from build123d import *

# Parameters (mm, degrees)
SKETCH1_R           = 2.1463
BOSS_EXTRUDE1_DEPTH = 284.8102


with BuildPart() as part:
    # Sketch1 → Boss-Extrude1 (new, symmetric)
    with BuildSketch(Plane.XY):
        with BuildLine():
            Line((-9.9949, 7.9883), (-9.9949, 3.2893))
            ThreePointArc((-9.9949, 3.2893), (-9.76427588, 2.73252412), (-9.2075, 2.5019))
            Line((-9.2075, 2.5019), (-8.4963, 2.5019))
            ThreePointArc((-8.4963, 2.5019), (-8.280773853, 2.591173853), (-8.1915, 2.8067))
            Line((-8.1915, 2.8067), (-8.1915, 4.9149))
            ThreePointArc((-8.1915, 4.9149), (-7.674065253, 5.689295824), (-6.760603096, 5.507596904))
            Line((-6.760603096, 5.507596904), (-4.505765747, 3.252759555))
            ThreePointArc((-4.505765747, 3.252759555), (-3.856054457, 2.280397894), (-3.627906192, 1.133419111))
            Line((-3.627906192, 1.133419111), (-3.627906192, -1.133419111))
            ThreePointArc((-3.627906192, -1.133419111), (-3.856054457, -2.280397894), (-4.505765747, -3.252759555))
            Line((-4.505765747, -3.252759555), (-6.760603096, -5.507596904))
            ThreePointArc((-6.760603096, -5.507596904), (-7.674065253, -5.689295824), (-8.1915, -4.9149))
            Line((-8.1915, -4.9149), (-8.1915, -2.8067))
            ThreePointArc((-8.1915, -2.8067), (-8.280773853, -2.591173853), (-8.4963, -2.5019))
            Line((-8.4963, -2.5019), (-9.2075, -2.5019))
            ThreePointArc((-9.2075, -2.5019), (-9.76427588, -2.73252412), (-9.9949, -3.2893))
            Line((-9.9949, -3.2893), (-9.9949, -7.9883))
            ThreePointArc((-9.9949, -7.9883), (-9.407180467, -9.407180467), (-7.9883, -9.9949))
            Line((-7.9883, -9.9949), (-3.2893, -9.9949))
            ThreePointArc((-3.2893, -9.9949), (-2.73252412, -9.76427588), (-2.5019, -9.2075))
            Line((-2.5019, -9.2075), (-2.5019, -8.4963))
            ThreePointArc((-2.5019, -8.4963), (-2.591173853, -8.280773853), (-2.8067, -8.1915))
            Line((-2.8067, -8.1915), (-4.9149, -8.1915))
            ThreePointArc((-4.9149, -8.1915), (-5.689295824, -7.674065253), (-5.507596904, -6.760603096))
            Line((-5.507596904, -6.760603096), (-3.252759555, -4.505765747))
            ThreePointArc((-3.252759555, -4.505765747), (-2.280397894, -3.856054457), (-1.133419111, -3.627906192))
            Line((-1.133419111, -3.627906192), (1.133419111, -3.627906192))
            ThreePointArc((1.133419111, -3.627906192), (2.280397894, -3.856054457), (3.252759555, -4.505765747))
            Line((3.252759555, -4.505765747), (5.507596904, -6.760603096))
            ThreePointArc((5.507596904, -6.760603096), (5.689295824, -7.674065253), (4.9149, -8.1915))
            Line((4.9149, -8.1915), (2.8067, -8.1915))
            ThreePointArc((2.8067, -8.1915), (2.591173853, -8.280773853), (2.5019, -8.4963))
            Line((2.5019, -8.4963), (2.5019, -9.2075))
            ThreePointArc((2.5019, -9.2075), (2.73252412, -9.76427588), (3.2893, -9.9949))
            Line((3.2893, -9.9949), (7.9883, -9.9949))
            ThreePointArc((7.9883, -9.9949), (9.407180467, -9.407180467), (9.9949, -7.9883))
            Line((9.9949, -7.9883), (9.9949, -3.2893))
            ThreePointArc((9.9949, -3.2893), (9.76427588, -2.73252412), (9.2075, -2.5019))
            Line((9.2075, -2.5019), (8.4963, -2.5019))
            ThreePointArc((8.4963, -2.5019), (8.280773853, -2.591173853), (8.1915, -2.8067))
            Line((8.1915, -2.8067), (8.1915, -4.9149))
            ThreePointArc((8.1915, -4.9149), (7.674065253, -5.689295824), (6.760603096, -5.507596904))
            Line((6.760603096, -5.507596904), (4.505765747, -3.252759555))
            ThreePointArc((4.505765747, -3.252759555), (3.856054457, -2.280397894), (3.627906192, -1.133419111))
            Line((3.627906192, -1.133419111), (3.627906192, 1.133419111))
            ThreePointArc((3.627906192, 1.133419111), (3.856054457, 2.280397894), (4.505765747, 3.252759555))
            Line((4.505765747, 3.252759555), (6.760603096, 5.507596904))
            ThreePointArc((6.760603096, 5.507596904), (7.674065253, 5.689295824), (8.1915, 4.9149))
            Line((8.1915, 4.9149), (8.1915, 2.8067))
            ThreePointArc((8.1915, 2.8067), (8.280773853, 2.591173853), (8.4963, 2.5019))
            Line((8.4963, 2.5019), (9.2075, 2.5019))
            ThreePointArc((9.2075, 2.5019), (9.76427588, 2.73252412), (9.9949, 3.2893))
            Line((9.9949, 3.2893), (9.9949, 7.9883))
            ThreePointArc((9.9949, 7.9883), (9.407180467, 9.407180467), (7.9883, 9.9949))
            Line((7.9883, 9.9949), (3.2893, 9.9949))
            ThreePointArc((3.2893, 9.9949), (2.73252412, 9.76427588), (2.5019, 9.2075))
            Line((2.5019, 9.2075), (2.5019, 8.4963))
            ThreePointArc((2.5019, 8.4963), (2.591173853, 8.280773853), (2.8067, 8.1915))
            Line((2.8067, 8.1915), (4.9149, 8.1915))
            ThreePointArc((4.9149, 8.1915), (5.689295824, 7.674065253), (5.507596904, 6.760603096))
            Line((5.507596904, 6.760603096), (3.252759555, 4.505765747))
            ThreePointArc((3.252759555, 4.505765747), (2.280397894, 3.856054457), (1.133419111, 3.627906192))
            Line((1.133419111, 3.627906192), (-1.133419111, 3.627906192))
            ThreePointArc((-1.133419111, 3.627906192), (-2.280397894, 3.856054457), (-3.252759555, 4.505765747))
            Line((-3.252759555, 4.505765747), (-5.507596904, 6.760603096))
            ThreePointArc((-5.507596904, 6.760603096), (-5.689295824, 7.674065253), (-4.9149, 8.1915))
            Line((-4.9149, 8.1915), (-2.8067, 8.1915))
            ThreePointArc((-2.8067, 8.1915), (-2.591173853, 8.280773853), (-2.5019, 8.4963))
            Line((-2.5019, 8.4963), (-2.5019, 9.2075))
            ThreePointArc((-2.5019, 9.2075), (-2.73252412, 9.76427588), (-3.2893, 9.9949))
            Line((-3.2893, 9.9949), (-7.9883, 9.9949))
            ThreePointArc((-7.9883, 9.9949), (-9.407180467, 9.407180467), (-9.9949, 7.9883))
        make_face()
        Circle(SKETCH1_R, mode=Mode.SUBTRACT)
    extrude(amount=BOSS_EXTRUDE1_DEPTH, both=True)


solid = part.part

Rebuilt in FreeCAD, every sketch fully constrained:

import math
import FreeCAD as App
import Part
import Sketcher

V = App.Vector
Q = App.Units.Quantity

doc = App.newDocument("Part")
body = doc.addObject("PartDesign::Body", "Body")

# Sketch on XY plane
sketch1 = body.newObject("Sketcher::SketchObject", "Sketch")
sketch1.AttachmentSupport = (doc.getObject("XY_Plane"), [""])
sketch1.MapMode = "FlatFace"
sketch1.addGeometry([
    Part.LineSegment(V(-9.99, 7.99, 0), V(-9.99, 3.29, 0)),  # 0
    Part.ArcOfCircle(Part.Circle(V(-9.21, 3.29, 0), V(0, 0, 1), 0.79), math.radians(180), math.radians(270)),  # 1
    Part.LineSegment(V(-9.21, 2.5, 0), V(-8.5, 2.5, 0)),  # 2
    Part.ArcOfCircle(Part.Circle(V(-8.5, 2.81, 0), V(0, 0, 1), 0.3), math.radians(-90), math.radians(0)),  # 3
    Part.LineSegment(V(-8.19, 2.81, 0), V(-8.19, 4.91, 0)),  # 4
    Part.ArcOfCircle(Part.Circle(V(-7.35, 4.91, 0), V(0, 0, 1), 0.84), math.radians(45), math.radians(180)),  # 5
    Part.LineSegment(V(-6.76, 5.51, 0), V(-4.51, 3.25, 0)),  # 6
    Part.ArcOfCircle(Part.Circle(V(-6.63, 1.13, 0), V(0, 0, 1), 3), math.radians(0), math.radians(45)),  # 7
    Part.LineSegment(V(-3.63, 1.13, 0), V(-3.63, -1.13, 0)),  # 8
    Part.ArcOfCircle(Part.Circle(V(-6.63, -1.13, 0), V(0, 0, 1), 3), math.radians(-45), math.radians(0)),  # 9
    Part.LineSegment(V(-4.51, -3.25, 0), V(-6.76, -5.51, 0)),  # 10
    Part.ArcOfCircle(Part.Circle(V(-7.35, -4.91, 0), V(0, 0, 1), 0.84), math.radians(180), math.radians(315)),  # 11
    Part.LineSegment(V(-8.19, -4.91, 0), V(-8.19, -2.81, 0)),  # 12
    Part.ArcOfCircle(Part.Circle(V(-8.5, -2.81, 0), V(0, 0, 1), 0.3), math.radians(0), math.radians(90)),  # 13
    Part.LineSegment(V(-8.5, -2.5, 0), V(-9.21, -2.5, 0)),  # 14
    Part.ArcOfCircle(Part.Circle(V(-9.21, -3.29, 0), V(0, 0, 1), 0.79), math.radians(90), math.radians(180)),  # 15
    Part.LineSegment(V(-9.99, -3.29, 0), V(-9.99, -7.99, 0)),  # 16
    Part.ArcOfCircle(Part.Circle(V(-7.99, -7.99, 0), V(0, 0, 1), 2.01), math.radians(180), math.radians(270)),  # 17
    Part.LineSegment(V(-7.99, -9.99, 0), V(-3.29, -9.99, 0)),  # 18
    Part.ArcOfCircle(Part.Circle(V(-3.29, -9.21, 0), V(0, 0, 1), 0.79), math.radians(-90), math.radians(0)),  # 19
    Part.LineSegment(V(-2.5, -9.21, 0), V(-2.5, -8.5, 0)),  # 20
    Part.ArcOfCircle(Part.Circle(V(-2.81, -8.5, 0), V(0, 0, 1), 0.3), math.radians(0), math.radians(90)),  # 21
    Part.LineSegment(V(-2.81, -8.19, 0), V(-4.91, -8.19, 0)),  # 22
    Part.ArcOfCircle(Part.Circle(V(-4.91, -7.35, 0), V(0, 0, 1), 0.84), math.radians(135), math.radians(270)),  # 23
    Part.LineSegment(V(-5.51, -6.76, 0), V(-3.25, -4.51, 0)),  # 24
    Part.ArcOfCircle(Part.Circle(V(-1.13, -6.63, 0), V(0, 0, 1), 3), math.radians(90), math.radians(135)),  # 25
    Part.LineSegment(V(-1.13, -3.63, 0), V(1.13, -3.63, 0)),  # 26
    Part.ArcOfCircle(Part.Circle(V(1.13, -6.63, 0), V(0, 0, 1), 3), math.radians(45), math.radians(90)),  # 27
    Part.LineSegment(V(3.25, -4.51, 0), V(5.51, -6.76, 0)),  # 28
    Part.ArcOfCircle(Part.Circle(V(4.91, -7.35, 0), V(0, 0, 1), 0.84), math.radians(-90), math.radians(45)),  # 29
    Part.LineSegment(V(4.91, -8.19, 0), V(2.81, -8.19, 0)),  # 30
    Part.ArcOfCircle(Part.Circle(V(2.81, -8.5, 0), V(0, 0, 1), 0.3), math.radians(90), math.radians(180)),  # 31
    Part.LineSegment(V(2.5, -8.5, 0), V(2.5, -9.21, 0)),  # 32
    Part.ArcOfCircle(Part.Circle(V(3.29, -9.21, 0), V(0, 0, 1), 0.79), math.radians(180), math.radians(270)),  # 33
    Part.LineSegment(V(3.29, -9.99, 0), V(7.99, -9.99, 0)),  # 34
    Part.ArcOfCircle(Part.Circle(V(7.99, -7.99, 0), V(0, 0, 1), 2.01), math.radians(-90), math.radians(0)),  # 35
    Part.LineSegment(V(9.99, -7.99, 0), V(9.99, -3.29, 0)),  # 36
    Part.ArcOfCircle(Part.Circle(V(9.21, -3.29, 0), V(0, 0, 1), 0.79), math.radians(0), math.radians(90)),  # 37
    Part.LineSegment(V(9.21, -2.5, 0), V(8.5, -2.5, 0)),  # 38
    Part.ArcOfCircle(Part.Circle(V(8.5, -2.81, 0), V(0, 0, 1), 0.3), math.radians(90), math.radians(180)),  # 39
    Part.LineSegment(V(8.19, -2.81, 0), V(8.19, -4.91, 0)),  # 40
    Part.ArcOfCircle(Part.Circle(V(7.35, -4.91, 0), V(0, 0, 1), 0.84), math.radians(-135), math.radians(0)),  # 41
    Part.LineSegment(V(6.76, -5.51, 0), V(4.51, -3.25, 0)),  # 42
    Part.ArcOfCircle(Part.Circle(V(6.63, -1.13, 0), V(0, 0, 1), 3), math.radians(180), math.radians(225)),  # 43
    Part.LineSegment(V(3.63, -1.13, 0), V(3.63, 1.13, 0)),  # 44
    Part.ArcOfCircle(Part.Circle(V(6.63, 1.13, 0), V(0, 0, 1), 3), math.radians(135), math.radians(180)),  # 45
    Part.LineSegment(V(4.51, 3.25, 0), V(6.76, 5.51, 0)),  # 46
    Part.ArcOfCircle(Part.Circle(V(7.35, 4.91, 0), V(0, 0, 1), 0.84), math.radians(0), math.radians(135)),  # 47
    Part.LineSegment(V(8.19, 4.91, 0), V(8.19, 2.81, 0)),  # 48
    Part.ArcOfCircle(Part.Circle(V(8.5, 2.81, 0), V(0, 0, 1), 0.3), math.radians(180), math.radians(270)),  # 49
    Part.LineSegment(V(8.5, 2.5, 0), V(9.21, 2.5, 0)),  # 50
    Part.ArcOfCircle(Part.Circle(V(9.21, 3.29, 0), V(0, 0, 1), 0.79), math.radians(-90), math.radians(0)),  # 51
    Part.LineSegment(V(9.99, 3.29, 0), V(9.99, 7.99, 0)),  # 52
    Part.ArcOfCircle(Part.Circle(V(7.99, 7.99, 0), V(0, 0, 1), 2.01), math.radians(0), math.radians(90)),  # 53
    Part.LineSegment(V(7.99, 9.99, 0), V(3.29, 9.99, 0)),  # 54
    Part.ArcOfCircle(Part.Circle(V(3.29, 9.21, 0), V(0, 0, 1), 0.79), math.radians(90), math.radians(180)),  # 55
    Part.LineSegment(V(2.5, 9.21, 0), V(2.5, 8.5, 0)),  # 56
    Part.ArcOfCircle(Part.Circle(V(2.81, 8.5, 0), V(0, 0, 1), 0.3), math.radians(180), math.radians(270)),  # 57
    Part.LineSegment(V(2.81, 8.19, 0), V(4.91, 8.19, 0)),  # 58
    Part.ArcOfCircle(Part.Circle(V(4.91, 7.35, 0), V(0, 0, 1), 0.84), math.radians(-45), math.radians(90)),  # 59
    Part.LineSegment(V(5.51, 6.76, 0), V(3.25, 4.51, 0)),  # 60
    Part.ArcOfCircle(Part.Circle(V(1.13, 6.63, 0), V(0, 0, 1), 3), math.radians(-90), math.radians(-45)),  # 61
    Part.LineSegment(V(1.13, 3.63, 0), V(-1.13, 3.63, 0)),  # 62
    Part.ArcOfCircle(Part.Circle(V(-1.13, 6.63, 0), V(0, 0, 1), 3), math.radians(-135), math.radians(-90)),  # 63
    Part.LineSegment(V(-3.25, 4.51, 0), V(-5.51, 6.76, 0)),  # 64
    Part.ArcOfCircle(Part.Circle(V(-4.91, 7.35, 0), V(0, 0, 1), 0.84), math.radians(90), math.radians(225)),  # 65
    Part.LineSegment(V(-4.91, 8.19, 0), V(-2.81, 8.19, 0)),  # 66
    Part.ArcOfCircle(Part.Circle(V(-2.81, 8.5, 0), V(0, 0, 1), 0.3), math.radians(-90), math.radians(0)),  # 67
    Part.LineSegment(V(-2.5, 8.5, 0), V(-2.5, 9.21, 0)),  # 68
    Part.ArcOfCircle(Part.Circle(V(-3.29, 9.21, 0), V(0, 0, 1), 0.79), math.radians(0), math.radians(90)),  # 69
    Part.LineSegment(V(-3.29, 9.99, 0), V(-7.99, 9.99, 0)),  # 70
    Part.ArcOfCircle(Part.Circle(V(-7.99, 7.99, 0), V(0, 0, 1), 2.01), math.radians(90), math.radians(180)),  # 71
    Part.Circle(V(0, 0, 0), V(0, 0, 1), 2.15),  # 72
], False)
sketch1.addConstraint([
    Sketcher.Constraint("Tangent", 0, 2, 1, 1),
    Sketcher.Constraint("Tangent", 1, 2, 2, 1),
    Sketcher.Constraint("Tangent", 2, 2, 3, 1),
    Sketcher.Constraint("Tangent", 3, 2, 4, 1),
    Sketcher.Constraint("Tangent", 4, 2, 5, 2),
    Sketcher.Constraint("Tangent", 5, 1, 6, 1),
    Sketcher.Constraint("Tangent", 6, 2, 7, 2),
    Sketcher.Constraint("Tangent", 7, 1, 8, 1),
    Sketcher.Constraint("Tangent", 8, 2, 9, 2),
    Sketcher.Constraint("Tangent", 9, 1, 10, 1),
    Sketcher.Constraint("Tangent", 10, 2, 11, 2),
    Sketcher.Constraint("Tangent", 11, 1, 12, 1),
    Sketcher.Constraint("Tangent", 12, 2, 13, 1),
    Sketcher.Constraint("Tangent", 13, 2, 14, 1),
    Sketcher.Constraint("Tangent", 14, 2, 15, 1),
    Sketcher.Constraint("Tangent", 15, 2, 16, 1),
    Sketcher.Constraint("Tangent", 16, 2, 17, 1),
    Sketcher.Constraint("Tangent", 17, 2, 18, 1),
    Sketcher.Constraint("Tangent", 18, 2, 19, 1),
    Sketcher.Constraint("Tangent", 19, 2, 20, 1),
    Sketcher.Constraint("Tangent", 20, 2, 21, 1),
    Sketcher.Constraint("Tangent", 21, 2, 22, 1),
    Sketcher.Constraint("Tangent", 22, 2, 23, 2),
    Sketcher.Constraint("Tangent", 23, 1, 24, 1),
    Sketcher.Constraint("Tangent", 24, 2, 25, 2),
    Sketcher.Constraint("Tangent", 25, 1, 26, 1),
    Sketcher.Constraint("Tangent", 26, 2, 27, 2),
    Sketcher.Constraint("Tangent", 27, 1, 28, 1),
    Sketcher.Constraint("Tangent", 28, 2, 29, 2),
    Sketcher.Constraint("Tangent", 29, 1, 30, 1),
    Sketcher.Constraint("Tangent", 30, 2, 31, 1),
    Sketcher.Constraint("Tangent", 31, 2, 32, 1),
    Sketcher.Constraint("Tangent", 32, 2, 33, 1),
    Sketcher.Constraint("Tangent", 33, 2, 34, 1),
    Sketcher.Constraint("Tangent", 34, 2, 35, 1),
    Sketcher.Constraint("Tangent", 35, 2, 36, 1),
    Sketcher.Constraint("Tangent", 36, 2, 37, 1),
    Sketcher.Constraint("Tangent", 37, 2, 38, 1),
    Sketcher.Constraint("Tangent", 38, 2, 39, 1),
    Sketcher.Constraint("Tangent", 39, 2, 40, 1),
    Sketcher.Constraint("Tangent", 40, 2, 41, 2),
    Sketcher.Constraint("Tangent", 41, 1, 42, 1),
    Sketcher.Constraint("Tangent", 42, 2, 43, 2),
    Sketcher.Constraint("Tangent", 43, 1, 44, 1),
    Sketcher.Constraint("Tangent", 44, 2, 45, 2),
    Sketcher.Constraint("Tangent", 45, 1, 46, 1),
    Sketcher.Constraint("Tangent", 46, 2, 47, 2),
    Sketcher.Constraint("Tangent", 47, 1, 48, 1),
    Sketcher.Constraint("Tangent", 48, 2, 49, 1),
    Sketcher.Constraint("Tangent", 49, 2, 50, 1),
    Sketcher.Constraint("Tangent", 50, 2, 51, 1),
    Sketcher.Constraint("Tangent", 51, 2, 52, 1),
    Sketcher.Constraint("Tangent", 52, 2, 53, 1),
    Sketcher.Constraint("Tangent", 53, 2, 54, 1),
    Sketcher.Constraint("Tangent", 54, 2, 55, 1),
    Sketcher.Constraint("Tangent", 55, 2, 56, 1),
    Sketcher.Constraint("Tangent", 56, 2, 57, 1),
    Sketcher.Constraint("Tangent", 57, 2, 58, 1),
    Sketcher.Constraint("Tangent", 58, 2, 59, 2),
    Sketcher.Constraint("Tangent", 59, 1, 60, 1),
    Sketcher.Constraint("Tangent", 60, 2, 61, 2),
    Sketcher.Constraint("Tangent", 61, 1, 62, 1),
    Sketcher.Constraint("Tangent", 62, 2, 63, 2),
    Sketcher.Constraint("Tangent", 63, 1, 64, 1),
    Sketcher.Constraint("Tangent", 64, 2, 65, 2),
    Sketcher.Constraint("Tangent", 65, 1, 66, 1),
    Sketcher.Constraint("Tangent", 66, 2, 67, 1),
    Sketcher.Constraint("Tangent", 67, 2, 68, 1),
    Sketcher.Constraint("Tangent", 68, 2, 69, 1),
    Sketcher.Constraint("Tangent", 69, 2, 70, 1),
    Sketcher.Constraint("Tangent", 70, 2, 71, 1),
    Sketcher.Constraint("Tangent", 71, 2, 0, 1),
    Sketcher.Constraint("Vertical", 0),
    Sketcher.Constraint("Horizontal", 2),
    Sketcher.Constraint("Vertical", 4),
    Sketcher.Constraint("Vertical", 8),
    Sketcher.Constraint("Vertical", 12),
    Sketcher.Constraint("Horizontal", 14),
    Sketcher.Constraint("Vertical", 16),
    Sketcher.Constraint("Horizontal", 18),
    Sketcher.Constraint("Vertical", 20),
    Sketcher.Constraint("Horizontal", 22),
    Sketcher.Constraint("Horizontal", 26),
    Sketcher.Constraint("Horizontal", 30),
    Sketcher.Constraint("Vertical", 32),
    Sketcher.Constraint("Horizontal", 34),
    Sketcher.Constraint("Vertical", 36),
    Sketcher.Constraint("Horizontal", 38),
    Sketcher.Constraint("Vertical", 40),
    Sketcher.Constraint("Vertical", 44),
    Sketcher.Constraint("Vertical", 48),
    Sketcher.Constraint("Horizontal", 50),
    Sketcher.Constraint("Vertical", 52),
    Sketcher.Constraint("Horizontal", 54),
    Sketcher.Constraint("Vertical", 56),
    Sketcher.Constraint("Horizontal", 58),
    Sketcher.Constraint("Horizontal", 62),
    Sketcher.Constraint("Horizontal", 66),
    Sketcher.Constraint("Vertical", 68),
    Sketcher.Constraint("Horizontal", 70),
    Sketcher.Constraint("Coincident", 72, 3, -1, 1),
    Sketcher.Constraint("Equal", 7, 9),
    Sketcher.Constraint("Equal", 5, 11),
    Sketcher.Constraint("Equal", 3, 13),
    Sketcher.Constraint("Equal", 1, 15),
    Sketcher.Constraint("Equal", 15, 19),
    Sketcher.Constraint("Equal", 13, 21),
    Sketcher.Constraint("Equal", 11, 23),
    Sketcher.Constraint("Equal", 9, 25),
    Sketcher.Constraint("Equal", 25, 27),
    Sketcher.Constraint("Equal", 23, 29),
    Sketcher.Constraint("Equal", 21, 31),
    Sketcher.Constraint("Equal", 19, 33),
    Sketcher.Constraint("Equal", 17, 35),
    Sketcher.Constraint("Equal", 33, 37),
    Sketcher.Constraint("Equal", 31, 39),
    Sketcher.Constraint("Equal", 29, 41),
    Sketcher.Constraint("Equal", 27, 43),
    Sketcher.Constraint("Equal", 43, 45),
    Sketcher.Constraint("Equal", 41, 47),
    Sketcher.Constraint("Equal", 39, 49),
    Sketcher.Constraint("Equal", 37, 51),
    Sketcher.Constraint("Equal", 35, 53),
    Sketcher.Constraint("Equal", 51, 55),
    Sketcher.Constraint("Equal", 49, 57),
    Sketcher.Constraint("Equal", 47, 59),
    Sketcher.Constraint("Equal", 45, 61),
    Sketcher.Constraint("Equal", 61, 63),
    Sketcher.Constraint("Equal", 59, 65),
    Sketcher.Constraint("Equal", 57, 67),
    Sketcher.Constraint("Equal", 55, 69),
    Sketcher.Constraint("Equal", 53, 71),
    Sketcher.Constraint("Symmetric", 1, 3, 37, 3, -1, 1),
    Sketcher.Constraint("Symmetric", 5, 3, 41, 3, -1, 1),
    Sketcher.Constraint("Symmetric", 7, 3, 43, 3, -1, 1),
    Sketcher.Constraint("Symmetric", 11, 3, 47, 3, -1, 1),
    Sketcher.Constraint("Symmetric", 15, 3, 51, 3, -1, 1),
    Sketcher.Constraint("Symmetric", 19, 3, 55, 3, -1, 1),
    Sketcher.Constraint("Symmetric", 23, 3, 59, 3, -1, 1),
    Sketcher.Constraint("Symmetric", 25, 3, 61, 3, -1, 1),
    Sketcher.Constraint("Symmetric", 29, 3, 65, 3, -1, 1),
    Sketcher.Constraint("Symmetric", 33, 3, 69, 3, -1, 1),
    Sketcher.Constraint("Symmetric", 23, 3, 29, 3, -2),
    Sketcher.Constraint("Symmetric", 19, 3, 33, 3, -2),
    Sketcher.Constraint("Symmetric", 15, 3, 37, 3, -2),
    Sketcher.Constraint("Symmetric", 11, 3, 41, 3, -2),
    Sketcher.Constraint("Perpendicular", 6, 10),
    Sketcher.Constraint("Parallel", 10, 24),
    Sketcher.Constraint("Perpendicular", 24, 28),
    Sketcher.Constraint("Perpendicular", 42, 46),
    Sketcher.Constraint("Perpendicular", 60, 64),
    Sketcher.Constraint("Horizontal", 9, 3, 43, 3),
    Sketcher.Constraint("Equal", 70, 0),
    Sketcher.Constraint("Equal", 66, 4),
    Sketcher.Constraint("Equal", 62, 8),
    Sketcher.Constraint("Equal", 50, 20),
    Sketcher.Constraint("Equal", 10, 24),
    Sketcher.Constraint("Diameter", 72, Q("0.169 in")),
    Sketcher.Constraint("Radius", 1, Q("0.031 in")),
    Sketcher.Constraint("Radius", 3, Q("0.012 in")),
    Sketcher.Constraint("Radius", 5, Q("0.033 in")),
    Sketcher.Constraint("Radius", 7, Q("0.118 in")),
    Sketcher.Constraint("Radius", 17, Q("0.079 in")),
    Sketcher.Constraint("DistanceX", 2, 1, 2, 2, Q("0.028 in")),
    Sketcher.Constraint("DistanceX", 18, 1, 18, 2, Q("0.185 in")),
    Sketcher.Constraint("DistanceX", 22, 2, 22, 1, Q("0.083 in")),
    Sketcher.Constraint("DistanceX", 1, 3, -1, 1, Q("0.3625 in")),
    Sketcher.Constraint("DistanceX", 26, 1, 26, 2, 2.266838),
])
pad1 = body.newObject("PartDesign::Pad", "Pad")
pad1.Profile = sketch1
pad1.Length = Q("22.426 in")
pad1.Midplane = True

doc.recompute()
